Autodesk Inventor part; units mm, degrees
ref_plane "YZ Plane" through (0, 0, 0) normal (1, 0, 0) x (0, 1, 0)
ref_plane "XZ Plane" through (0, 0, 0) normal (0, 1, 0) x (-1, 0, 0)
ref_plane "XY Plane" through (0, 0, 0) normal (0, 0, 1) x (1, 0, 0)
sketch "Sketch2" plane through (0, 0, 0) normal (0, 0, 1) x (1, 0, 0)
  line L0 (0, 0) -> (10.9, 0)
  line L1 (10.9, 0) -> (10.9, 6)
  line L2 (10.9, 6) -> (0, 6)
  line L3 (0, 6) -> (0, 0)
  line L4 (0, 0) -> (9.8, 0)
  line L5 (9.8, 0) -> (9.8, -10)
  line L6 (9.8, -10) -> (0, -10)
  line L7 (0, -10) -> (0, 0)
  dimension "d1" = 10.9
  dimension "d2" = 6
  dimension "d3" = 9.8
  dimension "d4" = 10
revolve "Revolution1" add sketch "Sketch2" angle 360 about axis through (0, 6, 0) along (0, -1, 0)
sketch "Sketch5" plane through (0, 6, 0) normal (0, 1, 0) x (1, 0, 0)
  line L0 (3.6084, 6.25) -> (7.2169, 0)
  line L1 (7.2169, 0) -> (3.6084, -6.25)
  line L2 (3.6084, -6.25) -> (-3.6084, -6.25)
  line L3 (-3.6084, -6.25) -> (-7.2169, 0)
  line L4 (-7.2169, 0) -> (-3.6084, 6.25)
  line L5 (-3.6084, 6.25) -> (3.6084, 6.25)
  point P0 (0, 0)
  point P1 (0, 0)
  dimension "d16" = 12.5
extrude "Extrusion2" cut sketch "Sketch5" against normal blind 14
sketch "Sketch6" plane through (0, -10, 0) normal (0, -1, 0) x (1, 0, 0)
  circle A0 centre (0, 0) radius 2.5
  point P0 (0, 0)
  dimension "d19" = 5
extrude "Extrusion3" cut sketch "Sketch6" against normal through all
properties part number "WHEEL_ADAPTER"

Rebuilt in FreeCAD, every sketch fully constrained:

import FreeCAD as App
import Part
import Sketcher

V = App.Vector
Q = App.Units.Quantity


def add_polygon(sketch, points):
    """Adds a closed chain of lines whose ends are joined by coincident constraints."""
    first, n = sketch.GeometryCount, len(points)
    for a, b in zip(points, points[1:] + points[:1]):
        sketch.addGeometry(Part.LineSegment(App.Vector(*a, 0), App.Vector(*b, 0)), False)
    for i in range(n):
        sketch.addConstraint(Sketcher.Constraint("Coincident", first + i, 2, first + (i + 1) % n, 1))

doc = App.newDocument("Part")
body = doc.addObject("PartDesign::Body", "Body")

# Sketch on XY plane
sketch1 = doc.addObject("Sketcher::SketchObject", "Sketch")
body.addObject(sketch1)
sketch1.AttachmentSupport = (doc.XY_Plane, [""])
sketch1.MapMode = "FlatFace"
add_polygon(sketch1, [(0, 6), (0, -10), (9.8, -10), (9.8, 0), (10.9, 0), (10.9, 6)])  # lines 0-5
sketch1.addConstraint([
    Sketcher.Constraint("Vertical", 0),
    Sketcher.Constraint("Horizontal", 1),
    Sketcher.Constraint("Vertical", 2),
    Sketcher.Constraint("Horizontal", 3),
    Sketcher.Constraint("Vertical", 4),
    Sketcher.Constraint("Horizontal", 5),
    Sketcher.Constraint("PointOnObject", 0, 2, -2),
    Sketcher.Constraint("PointOnObject", 2, 2, -1),
    Sketcher.Constraint("DistanceY", 2, 1, 2, 2, Q("10 mm")),
    Sketcher.Constraint("DistanceY", 4, 1, 4, 2, Q("6 mm")),
    Sketcher.Constraint("DistanceX", 1, 1, 1, 2, Q("9.8 mm")),
    Sketcher.Constraint("DistanceX", 5, 2, 5, 1, Q("10.9 mm")),
])
revolution = doc.addObject("PartDesign::Revolution", "Revolution")
body.addObject(revolution)
revolution.Profile = sketch1
revolution.ReferenceAxis = (sketch1, ["V_Axis"])
revolution.Angle = 360

# Sketch on XZ plane
sketch2 = doc.addObject("Sketcher::SketchObject", "Sketch001")
body.addObject(sketch2)
sketch2.AttachmentSupport = (doc.XZ_Plane, [""])
sketch2.MapMode = "FlatFace"
sketch2.AttachmentOffset = App.Placement(V(0, 0, -6), App.Rotation())
add_polygon(sketch2, [(7, 0), (4, -6), (-4, -6), (-7, 0), (-4, 6), (4, 6)])  # lines 0-5
sketch2.addConstraint([
    Sketcher.Constraint("Horizontal", 1),
    Sketcher.Constraint("Horizontal", 4),
    Sketcher.Constraint("Symmetric", 0, 2, 3, 2, -1, 1),
    Sketcher.Constraint("Symmetric", 2, 2, 5, 2, -1, 1),
    Sketcher.Constraint("PointOnObject", 2, 2, -1),
    Sketcher.Constraint("Parallel", 2, 5),
    Sketcher.Constraint("Vertical", 1, 2, 3, 2),
    Sketcher.Constraint("DistanceY", 1, 2, 3, 2, Q("12.5 mm")),
    Sketcher.Constraint("Angle", 0, Q("-120.0004 deg")),
    Sketcher.Constraint("DistanceX", 1, 2, 1, 1, Q("7.2168 mm")),
])
pocket1 = doc.addObject("PartDesign::Pocket", "Pocket")
body.addObject(pocket1)
pocket1.Profile = sketch2
pocket1.Length = 14
pocket1.Reversed = True

# Sketch on XZ plane
sketch3 = doc.addObject("Sketcher::SketchObject", "Sketch002")
body.addObject(sketch3)
sketch3.AttachmentSupport = (doc.XZ_Plane, [""])
sketch3.MapMode = "FlatFace"
sketch3.AttachmentOffset = App.Placement(V(0, 0, 10), App.Rotation())
sketch3.addGeometry(Part.Circle(V(0, 0, 0), V(0, 0, 1), 2.5), False)
sketch3.addConstraint([
    Sketcher.Constraint("Coincident", 0, 3, -1, 1),
    Sketcher.Constraint("Diameter", 0, Q("5 mm")),
])
pocket2 = doc.addObject("PartDesign::Pocket", "Pocket001")
body.addObject(pocket2)
pocket2.Profile = sketch3
pocket2.Type = "ThroughAll"

doc.recompute()
